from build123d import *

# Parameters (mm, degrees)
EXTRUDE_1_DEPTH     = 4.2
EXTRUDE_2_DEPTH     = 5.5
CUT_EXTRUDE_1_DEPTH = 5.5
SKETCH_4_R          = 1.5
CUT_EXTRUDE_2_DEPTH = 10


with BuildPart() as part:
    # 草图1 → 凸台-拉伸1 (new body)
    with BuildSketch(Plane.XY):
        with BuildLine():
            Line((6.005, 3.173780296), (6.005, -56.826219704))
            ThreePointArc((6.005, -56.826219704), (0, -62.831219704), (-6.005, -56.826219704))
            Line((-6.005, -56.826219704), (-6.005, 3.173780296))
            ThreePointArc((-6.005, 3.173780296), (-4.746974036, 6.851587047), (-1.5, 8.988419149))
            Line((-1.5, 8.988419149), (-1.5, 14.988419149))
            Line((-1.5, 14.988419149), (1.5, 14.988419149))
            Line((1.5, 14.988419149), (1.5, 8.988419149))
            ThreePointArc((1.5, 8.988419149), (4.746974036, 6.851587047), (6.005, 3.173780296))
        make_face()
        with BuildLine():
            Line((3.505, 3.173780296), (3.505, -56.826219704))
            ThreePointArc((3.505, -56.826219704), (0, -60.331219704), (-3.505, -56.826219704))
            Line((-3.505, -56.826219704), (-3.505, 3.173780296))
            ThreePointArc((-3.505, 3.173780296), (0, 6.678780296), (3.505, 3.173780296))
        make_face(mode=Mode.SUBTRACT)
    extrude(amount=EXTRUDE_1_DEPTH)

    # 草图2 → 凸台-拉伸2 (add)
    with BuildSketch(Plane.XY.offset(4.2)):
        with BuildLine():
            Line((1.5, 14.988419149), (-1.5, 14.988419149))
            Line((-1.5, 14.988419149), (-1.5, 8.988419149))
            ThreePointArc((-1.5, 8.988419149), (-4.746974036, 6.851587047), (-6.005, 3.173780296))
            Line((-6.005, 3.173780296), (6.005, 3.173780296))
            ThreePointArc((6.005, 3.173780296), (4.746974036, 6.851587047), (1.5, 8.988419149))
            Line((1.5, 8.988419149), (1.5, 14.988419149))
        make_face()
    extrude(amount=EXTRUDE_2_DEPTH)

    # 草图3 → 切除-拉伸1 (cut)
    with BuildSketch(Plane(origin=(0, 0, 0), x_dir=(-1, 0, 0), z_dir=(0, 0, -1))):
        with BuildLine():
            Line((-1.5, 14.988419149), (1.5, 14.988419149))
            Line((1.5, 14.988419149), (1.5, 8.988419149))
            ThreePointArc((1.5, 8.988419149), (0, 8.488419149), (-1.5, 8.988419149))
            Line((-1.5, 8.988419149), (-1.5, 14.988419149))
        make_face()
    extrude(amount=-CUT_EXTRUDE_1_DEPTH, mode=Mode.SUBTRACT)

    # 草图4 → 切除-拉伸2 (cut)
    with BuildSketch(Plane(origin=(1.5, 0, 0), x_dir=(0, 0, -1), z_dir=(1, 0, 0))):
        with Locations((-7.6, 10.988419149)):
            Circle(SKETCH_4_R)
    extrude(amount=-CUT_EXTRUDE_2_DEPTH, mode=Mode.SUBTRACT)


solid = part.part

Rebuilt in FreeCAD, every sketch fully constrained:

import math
import FreeCAD as App
import Part
import Sketcher

doc = App.newDocument("Part")
body = doc.addObject("PartDesign::Body", "Body")

# Sketch on XY plane
sketch1 = body.newObject("Sketcher::SketchObject", "Sketch")
sketch1.AttachmentSupport = (doc.getObject("XY_Plane"), [""])
sketch1.MapMode = "FlatFace"
sketch1.addGeometry(Part.LineSegment(App.Vector(6.005, -56.82622, 0), App.Vector(6.005, 3.17378, 0)), False)
sketch1.addGeometry(Part.ArcOfCircle(Part.Circle(App.Vector(0, 3.17378, 0), App.Vector(0, 0, 1), 6.005), math.radians(0), math.radians(75.534805)), False)
sketch1.addGeometry(Part.LineSegment(App.Vector(1.5, 8.988419, 0), App.Vector(1.5, 14.988419, 0)), False)
sketch1.addGeometry(Part.LineSegment(App.Vector(1.5, 14.988419, 0), App.Vector(-1.5, 14.988419, 0)), False)
sketch1.addGeometry(Part.LineSegment(App.Vector(-1.5, 14.988419, 0), App.Vector(-1.5, 8.988419, 0)), False)
sketch1.addGeometry(Part.ArcOfCircle(Part.Circle(App.Vector(0, 3.17378, 0), App.Vector(0, 0, 1), 6.005), math.radians(104.465195), math.radians(180)), False)
sketch1.addGeometry(Part.LineSegment(App.Vector(-6.005, 3.17378, 0), App.Vector(-6.005, -56.82622, 0)), False)
sketch1.addGeometry(Part.ArcOfCircle(Part.Circle(App.Vector(0, -56.82622, 0), App.Vector(0, 0, 1), 6.005), math.radians(180), math.radians(360)), False)
sketch1.addGeometry(Part.LineSegment(App.Vector(3.505, 3.17378, 0), App.Vector(3.505, -56.82622, 0)), False)
sketch1.addGeometry(Part.ArcOfCircle(Part.Circle(App.Vector(0, -56.82622, 0), App.Vector(0, 0, 1), 3.505), math.radians(180), math.radians(360)), False)
sketch1.addGeometry(Part.LineSegment(App.Vector(-3.505, -56.82622, 0), App.Vector(-3.505, 3.17378, 0)), False)
sketch1.addGeometry(Part.ArcOfCircle(Part.Circle(App.Vector(0, 3.17378, 0), App.Vector(0, 0, 1), 3.505), math.radians(0), math.radians(180)), False)
sketch1.addConstraint(Sketcher.Constraint("Tangent", 0, 2, 1, 1))
sketch1.addConstraint(Sketcher.Constraint("Coincident", 1, 2, 2, 1))
sketch1.addConstraint(Sketcher.Constraint("Coincident", 2, 2, 3, 1))
sketch1.addConstraint(Sketcher.Constraint("Coincident", 3, 2, 4, 1))
sketch1.addConstraint(Sketcher.Constraint("Coincident", 4, 2, 5, 1))
sketch1.addConstraint(Sketcher.Constraint("Tangent", 5, 2, 6, 1))
sketch1.addConstraint(Sketcher.Constraint("Tangent", 6, 2, 7, 1))
sketch1.addConstraint(Sketcher.Constraint("Tangent", 7, 2, 0, 1))
sketch1.addConstraint(Sketcher.Constraint("Tangent", 8, 2, 9, 2))
sketch1.addConstraint(Sketcher.Constraint("Tangent", 9, 1, 10, 1))
sketch1.addConstraint(Sketcher.Constraint("Tangent", 10, 2, 11, 2))
sketch1.addConstraint(Sketcher.Constraint("Tangent", 11, 1, 8, 1))
sketch1.addConstraint(Sketcher.Constraint("Vertical", 0))
sketch1.addConstraint(Sketcher.Constraint("Vertical", 2))
sketch1.addConstraint(Sketcher.Constraint("Horizontal", 3))
sketch1.addConstraint(Sketcher.Constraint("Vertical", 4))
sketch1.addConstraint(Sketcher.Constraint("Vertical", 6))
sketch1.addConstraint(Sketcher.Constraint("Vertical", 8))
sketch1.addConstraint(Sketcher.Constraint("Vertical", 10))
sketch1.addConstraint(Sketcher.Constraint("Coincident", 5, 3, 1, 3))
sketch1.addConstraint(Sketcher.Constraint("Coincident", 9, 3, 7, 3))
sketch1.addConstraint(Sketcher.Constraint("Coincident", 11, 3, 1, 3))
sketch1.addConstraint(Sketcher.Constraint("Symmetric", 1, 2, 4, 2, -2))
sketch1.addConstraint(Sketcher.Constraint("DistanceX", 3, 2, 3, 1, 3.0))
sketch1.addConstraint(Sketcher.Constraint("DistanceY", 0, 1, 0, 2, 60.0))
sketch1.addConstraint(Sketcher.Constraint("DistanceY", 2, 1, 2, 2, 6.0))
sketch1.addConstraint(Sketcher.Constraint("Radius", 1, 6.005))
sketch1.addConstraint(Sketcher.Constraint("Radius", 9, 3.505))
sketch1.addConstraint(Sketcher.Constraint("DistanceY", -1, 1, 1, 3, 3.17378))
pad1 = body.newObject("PartDesign::Pad", "Pad")
pad1.Profile = sketch1
pad1.Length = 4.2

# Sketch on XY plane
sketch2 = body.newObject("Sketcher::SketchObject", "Sketch001")
sketch2.AttachmentSupport = (doc.getObject("XY_Plane"), [""])
sketch2.MapMode = "FlatFace"
sketch2.AttachmentOffset = App.Placement(App.Vector(0, 0, 4.2), App.Rotation())
sketch2.addGeometry(Part.LineSegment(App.Vector(1.5, 14.988419, 0), App.Vector(-1.5, 14.988419, 0)), False)
sketch2.addGeometry(Part.LineSegment(App.Vector(-1.5, 14.988419, 0), App.Vector(-1.5, 8.988419, 0)), False)
sketch2.addGeometry(Part.ArcOfCircle(Part.Circle(App.Vector(0, 3.17378, 0), App.Vector(0, 0, 1), 6.005), math.radians(104.465195), math.radians(180)), False)
sketch2.addGeometry(Part.LineSegment(App.Vector(-6.005, 3.17378, 0), App.Vector(6.005, 3.17378, 0)), False)
sketch2.addGeometry(Part.ArcOfCircle(Part.Circle(App.Vector(0, 3.17378, 0), App.Vector(0, 0, 1), 6.005), math.radians(0), math.radians(75.534805)), False)
sketch2.addGeometry(Part.LineSegment(App.Vector(1.5, 8.988419, 0), App.Vector(1.5, 14.988419, 0)), False)
sketch2.addConstraint(Sketcher.Constraint("Coincident", 0, 2, 1, 1))
sketch2.addConstraint(Sketcher.Constraint("Coincident", 1, 2, 2, 1))
sketch2.addConstraint(Sketcher.Constraint("Coincident", 2, 2, 3, 1))
sketch2.addConstraint(Sketcher.Constraint("Coincident", 3, 2, 4, 1))
sketch2.addConstraint(Sketcher.Constraint("Coincident", 4, 2, 5, 1))
sketch2.addConstraint(Sketcher.Constraint("Coincident", 5, 2, 0, 1))
sketch2.addConstraint(Sketcher.Constraint("Horizontal", 0))
sketch2.addConstraint(Sketcher.Constraint("Vertical", 1))
sketch2.addConstraint(Sketcher.Constraint("Horizontal", 3))
sketch2.addConstraint(Sketcher.Constraint("Vertical", 5))
sketch2.addConstraint(Sketcher.Constraint("Coincident", 4, 3, 2, 3))
sketch2.addConstraint(Sketcher.Constraint("Equal", 2, 4))
sketch2.addConstraint(Sketcher.Constraint("Symmetric", 1, 2, 4, 2, -2))
sketch2.addConstraint(Sketcher.Constraint("Horizontal", 4, 3, 2, 2))
sketch2.addConstraint(Sketcher.Constraint("DistanceX", 0, 2, 0, 1, 3.0))
sketch2.addConstraint(Sketcher.Constraint("DistanceY", 1, 2, 1, 1, 6.0))
sketch2.addConstraint(Sketcher.Constraint("Radius", 2, 6.005))
sketch2.addConstraint(Sketcher.Constraint("DistanceY", -1, 1, 2, 3, 3.17378))
pad2 = body.newObject("PartDesign::Pad", "Pad001")
pad2.Profile = sketch2
pad2.Length = 5.5

# Sketch on XY plane
sketch3 = body.newObject("Sketcher::SketchObject", "Sketch002")
sketch3.AttachmentSupport = (doc.getObject("XY_Plane"), [""])
sketch3.MapMode = "FlatFace"
sketch3.addGeometry(Part.LineSegment(App.Vector(-1.5, 14.988419, 0), App.Vector(1.5, 14.988419, 0)), False)
sketch3.addGeometry(Part.LineSegment(App.Vector(1.5, 14.988419, 0), App.Vector(1.5, 8.988419, 0)), False)
sketch3.addGeometry(Part.ArcOfCircle(Part.Circle(App.Vector(0, 10.988419, 0), App.Vector(0, 0, 1), 2.5), math.radians(-126.869898), math.radians(-53.130102)), False)
sketch3.addGeometry(Part.LineSegment(App.Vector(-1.5, 8.988419, 0), App.Vector(-1.5, 14.988419, 0)), False)
sketch3.addConstraint(Sketcher.Constraint("Coincident", 0, 2, 1, 1))
sketch3.addConstraint(Sketcher.Constraint("Coincident", 1, 2, 2, 2))
sketch3.addConstraint(Sketcher.Constraint("Coincident", 2, 1, 3, 1))
sketch3.addConstraint(Sketcher.Constraint("Coincident", 3, 2, 0, 1))
sketch3.addConstraint(Sketcher.Constraint("Horizontal", 0))
sketch3.addConstraint(Sketcher.Constraint("Vertical", 1))
sketch3.addConstraint(Sketcher.Constraint("Vertical", 3))
sketch3.addConstraint(Sketcher.Constraint("Symmetric", 1, 2, 2, 1, -2))
sketch3.addConstraint(Sketcher.Constraint("Radius", 2, 2.5))
sketch3.addConstraint(Sketcher.Constraint("DistanceX", 0, 1, 0, 2, 3.0))
sketch3.addConstraint(Sketcher.Constraint("DistanceY", 1, 2, 1, 1, 6.0))
sketch3.addConstraint(Sketcher.Constraint("DistanceY", -1, 1, 2, 3, 10.988419))
pocket1 = body.newObject("PartDesign::Pocket", "Pocket")
pocket1.Profile = sketch3
pocket1.Length = 5.5
pocket1.Reversed = True

# Sketch on YZ plane
sketch4 = body.newObject("Sketcher::SketchObject", "Sketch003")
sketch4.AttachmentSupport = (doc.getObject("YZ_Plane"), [""])
sketch4.MapMode = "FlatFace"
sketch4.AttachmentOffset = App.Placement(App.Vector(0, 0, 1.5), App.Rotation())
sketch4.addGeometry(Part.Circle(App.Vector(10.988419, 7.6, 0), App.Vector(0, 0, 1), 1.5), False)
sketch4.addConstraint(Sketcher.Constraint("Diameter", 0, 3.0))
sketch4.addConstraint(Sketcher.Constraint("DistanceY", -1, 1, 0, 3, 7.6))
sketch4.addConstraint(Sketcher.Constraint("DistanceX", -1, 1, 0, 3, 10.988419))
pocket2 = body.newObject("PartDesign::Pocket", "Pocket001")
pocket2.Profile = sketch4
pocket2.Length = 10

doc.recompute()
